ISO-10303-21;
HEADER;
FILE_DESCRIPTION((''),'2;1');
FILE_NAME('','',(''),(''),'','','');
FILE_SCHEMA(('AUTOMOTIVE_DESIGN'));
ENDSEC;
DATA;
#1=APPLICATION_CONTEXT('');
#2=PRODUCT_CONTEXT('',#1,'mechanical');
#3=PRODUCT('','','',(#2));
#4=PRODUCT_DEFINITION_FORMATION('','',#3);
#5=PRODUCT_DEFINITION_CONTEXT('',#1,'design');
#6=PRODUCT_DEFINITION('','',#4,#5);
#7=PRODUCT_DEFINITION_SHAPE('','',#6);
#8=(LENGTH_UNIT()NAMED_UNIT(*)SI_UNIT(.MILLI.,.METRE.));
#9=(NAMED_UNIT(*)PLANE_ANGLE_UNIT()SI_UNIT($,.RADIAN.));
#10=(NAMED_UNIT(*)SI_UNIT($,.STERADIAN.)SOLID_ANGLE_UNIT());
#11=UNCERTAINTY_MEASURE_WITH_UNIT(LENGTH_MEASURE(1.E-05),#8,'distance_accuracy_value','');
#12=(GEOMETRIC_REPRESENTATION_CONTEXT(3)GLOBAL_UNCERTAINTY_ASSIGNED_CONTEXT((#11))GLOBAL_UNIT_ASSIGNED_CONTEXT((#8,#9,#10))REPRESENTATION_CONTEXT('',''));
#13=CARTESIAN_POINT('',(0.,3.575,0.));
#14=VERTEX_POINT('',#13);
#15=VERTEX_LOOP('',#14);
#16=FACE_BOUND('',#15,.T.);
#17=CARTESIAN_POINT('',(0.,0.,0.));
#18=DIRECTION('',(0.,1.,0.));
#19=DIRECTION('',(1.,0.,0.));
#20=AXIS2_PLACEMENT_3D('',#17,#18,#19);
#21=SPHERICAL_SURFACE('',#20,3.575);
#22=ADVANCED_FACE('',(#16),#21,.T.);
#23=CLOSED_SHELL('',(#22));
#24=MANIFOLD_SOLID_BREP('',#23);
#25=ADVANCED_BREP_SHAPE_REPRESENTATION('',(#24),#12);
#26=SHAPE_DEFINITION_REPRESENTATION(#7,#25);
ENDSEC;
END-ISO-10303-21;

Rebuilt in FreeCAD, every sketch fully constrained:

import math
import FreeCAD as App
import Part
import Sketcher
Q = App.Units.Quantity

doc = App.newDocument("Part")
params = doc.addObject("Spreadsheet::Sheet", "Params")
for row, (alias, value) in enumerate([
    ("revolution_angle", "360 deg"),
], start=1):
    params.set(f"A{row}", alias)
    params.set(f"B{row}", "=" + value)
    params.setAlias(f"B{row}", alias)

body = doc.addObject("PartDesign::Body", "Body")

# Sketch on XY plane
sketch1 = body.newObject("Sketcher::SketchObject", "Sketch")
sketch1.AttachmentSupport = (doc.getObject("XY_Plane"), [""])
sketch1.MapMode = "FlatFace"
sketch1.addGeometry(Part.LineSegment(App.Vector(0, -3.575, 0), App.Vector(0, 3.575, 0)), False)
sketch1.addGeometry(Part.ArcOfCircle(Part.Circle(App.Vector(0, 0, 0), App.Vector(0, 0, 1), 3.575), math.radians(90), math.radians(270)), False)
sketch1.addConstraint(Sketcher.Constraint("Coincident", 0, 1, 1, 2))
sketch1.addConstraint(Sketcher.Constraint("Coincident", 1, 1, 0, 2))
sketch1.addConstraint(Sketcher.Constraint("Vertical", 0))
sketch1.addConstraint(Sketcher.Constraint("Coincident", 1, 3, -1, 1))
sketch1.addConstraint(Sketcher.Constraint("PointOnObject", 0, 1, -2))
sketch1.addConstraint(Sketcher.Constraint("Radius", 1, Q("3.575 mm")))
revolution = body.newObject("PartDesign::Revolution", "Revolution")
revolution.Profile = sketch1
revolution.ReferenceAxis = (sketch1, ["V_Axis"])
revolution.setExpression("Angle", "Params.revolution_angle")

doc.recompute()
